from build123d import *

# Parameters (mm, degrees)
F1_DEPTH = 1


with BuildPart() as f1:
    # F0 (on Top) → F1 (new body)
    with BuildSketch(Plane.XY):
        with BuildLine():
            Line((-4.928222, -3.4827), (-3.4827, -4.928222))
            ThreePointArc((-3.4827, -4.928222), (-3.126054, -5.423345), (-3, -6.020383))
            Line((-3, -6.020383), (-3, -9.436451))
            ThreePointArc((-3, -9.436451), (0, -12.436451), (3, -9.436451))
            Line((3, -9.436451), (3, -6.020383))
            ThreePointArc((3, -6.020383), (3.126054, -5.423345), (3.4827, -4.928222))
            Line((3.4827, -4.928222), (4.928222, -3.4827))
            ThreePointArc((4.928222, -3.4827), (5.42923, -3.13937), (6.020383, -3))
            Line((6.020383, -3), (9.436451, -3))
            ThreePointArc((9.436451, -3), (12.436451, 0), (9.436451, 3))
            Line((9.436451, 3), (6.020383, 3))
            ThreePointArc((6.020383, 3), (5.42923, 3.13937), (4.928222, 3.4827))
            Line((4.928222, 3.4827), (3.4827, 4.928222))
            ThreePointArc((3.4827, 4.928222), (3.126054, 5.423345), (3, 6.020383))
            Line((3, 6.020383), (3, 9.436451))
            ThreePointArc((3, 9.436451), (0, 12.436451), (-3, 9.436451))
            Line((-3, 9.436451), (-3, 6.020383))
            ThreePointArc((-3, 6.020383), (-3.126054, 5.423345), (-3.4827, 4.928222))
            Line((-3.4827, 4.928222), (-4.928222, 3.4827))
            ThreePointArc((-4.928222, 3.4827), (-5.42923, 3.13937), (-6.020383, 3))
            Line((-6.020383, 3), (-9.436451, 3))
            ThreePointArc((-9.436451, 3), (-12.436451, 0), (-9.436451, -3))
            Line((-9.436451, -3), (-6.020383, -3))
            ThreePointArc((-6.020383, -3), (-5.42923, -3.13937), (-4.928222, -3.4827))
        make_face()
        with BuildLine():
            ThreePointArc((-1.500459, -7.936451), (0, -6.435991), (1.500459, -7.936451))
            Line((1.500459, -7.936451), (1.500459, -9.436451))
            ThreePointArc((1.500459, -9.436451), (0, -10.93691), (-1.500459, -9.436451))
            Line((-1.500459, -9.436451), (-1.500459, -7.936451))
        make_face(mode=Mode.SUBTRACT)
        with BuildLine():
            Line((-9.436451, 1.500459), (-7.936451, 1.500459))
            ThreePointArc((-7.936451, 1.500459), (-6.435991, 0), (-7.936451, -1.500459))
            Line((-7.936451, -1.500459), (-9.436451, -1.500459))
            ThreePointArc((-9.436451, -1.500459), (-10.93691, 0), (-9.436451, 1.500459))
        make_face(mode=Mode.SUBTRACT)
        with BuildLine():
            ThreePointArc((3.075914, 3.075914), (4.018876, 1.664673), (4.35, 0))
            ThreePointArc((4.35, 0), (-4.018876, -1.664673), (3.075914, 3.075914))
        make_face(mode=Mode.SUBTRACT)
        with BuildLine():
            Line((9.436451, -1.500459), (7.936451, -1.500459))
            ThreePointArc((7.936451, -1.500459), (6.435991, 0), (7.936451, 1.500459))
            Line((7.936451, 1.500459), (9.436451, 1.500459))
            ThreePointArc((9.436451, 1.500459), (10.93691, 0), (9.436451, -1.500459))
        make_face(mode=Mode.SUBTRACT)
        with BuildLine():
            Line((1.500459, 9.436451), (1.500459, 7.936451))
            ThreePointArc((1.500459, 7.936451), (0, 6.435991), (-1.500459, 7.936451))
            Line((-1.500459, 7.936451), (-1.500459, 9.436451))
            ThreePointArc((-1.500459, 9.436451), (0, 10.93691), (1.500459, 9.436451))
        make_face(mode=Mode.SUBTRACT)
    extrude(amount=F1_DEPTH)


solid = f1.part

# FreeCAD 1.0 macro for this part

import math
import FreeCAD as App
import Part
import Sketcher

doc = App.newDocument("Part")
params = doc.addObject("Spreadsheet::Sheet", "Params")
for row, (alias, value) in enumerate([
    ("sketch1_radius", "3 mm"),
    ("sketch1_radius2", "3 mm"),
    ("sketch1_radius3", "3 mm"),
    ("sketch1_radius4", "3 mm"),
    ("sketch1_radius5", "4.35 mm"),
    ("pad1_length", "1 mm"),
], start=1):
    params.set(f"A{row}", alias)
    params.set(f"B{row}", "=" + value)
    params.setAlias(f"B{row}", alias)

body = doc.addObject("PartDesign::Body", "Body")

# Sketch on XY plane
sketch1 = body.newObject("Sketcher::SketchObject", "Sketch")
sketch1.AttachmentSupport = (doc.getObject("XY_Plane"), [""])
sketch1.MapMode = "FlatFace"
sketch1.addGeometry([
    Part.LineSegment(App.Vector(-4.928222, -3.4827, 0), App.Vector(-3.4827, -4.928222, 0)),  # 0
    Part.ArcOfCircle(Part.Circle(App.Vector(-4.47691, -6.02038, 0), App.Vector(0, 0, 1), 1.47691), math.radians(-0.000099), math.radians(47.68787)),  # 1
    Part.LineSegment(App.Vector(-3, -6.020383, 0), App.Vector(-3, -9.436451, 0)),  # 2
    Part.ArcOfCircle(Part.Circle(App.Vector(0, -9.436451, 0), App.Vector(0, 0, 1), 3), math.radians(180), math.radians(360)),  # 3
    Part.LineSegment(App.Vector(3, -9.436451, 0), App.Vector(3, -6.020383, 0)),  # 4
    Part.ArcOfCircle(Part.Circle(App.Vector(4.47691, -6.02038, 0), App.Vector(0, 0, 1), 1.47691), math.radians(132.31213), math.radians(180.000099)),  # 5
    Part.LineSegment(App.Vector(3.4827, -4.928222, 0), App.Vector(4.928222, -3.4827, 0)),  # 6
    Part.ArcOfCircle(Part.Circle(App.Vector(6.097953, -4.652427, 0), App.Vector(0, 0, 1), 1.654247), math.radians(92.687672), math.radians(135.000099)),  # 7
    Part.LineSegment(App.Vector(6.020383, -3, 0), App.Vector(9.436451, -3, 0)),  # 8
    Part.ArcOfCircle(Part.Circle(App.Vector(9.436451, 0, 0), App.Vector(0, 0, 1), 3), math.radians(-90), math.radians(90)),  # 9
    Part.LineSegment(App.Vector(9.436451, 3, 0), App.Vector(6.020383, 3, 0)),  # 10
    Part.ArcOfCircle(Part.Circle(App.Vector(6.097953, 4.652427, 0), App.Vector(0, 0, 1), 1.654247), math.radians(-135.000099), math.radians(-92.687672)),  # 11
    Part.LineSegment(App.Vector(4.928222, 3.4827, 0), App.Vector(3.4827, 4.928222, 0)),  # 12
    Part.ArcOfCircle(Part.Circle(App.Vector(4.47691, 6.02038, 0), App.Vector(0, 0, 1), 1.47691), math.radians(179.999901), math.radians(227.68787)),  # 13
    Part.LineSegment(App.Vector(3, 6.020383, 0), App.Vector(3, 9.436451, 0)),  # 14
    Part.ArcOfCircle(Part.Circle(App.Vector(0, 9.436451, 0), App.Vector(0, 0, 1), 3), math.radians(0), math.radians(180)),  # 15
    Part.LineSegment(App.Vector(-3, 9.436451, 0), App.Vector(-3, 6.020383, 0)),  # 16
    Part.ArcOfCircle(Part.Circle(App.Vector(-4.47691, 6.02038, 0), App.Vector(0, 0, 1), 1.47691), math.radians(-47.68787), math.radians(0.000099)),  # 17
    Part.LineSegment(App.Vector(-3.4827, 4.928222, 0), App.Vector(-4.928222, 3.4827, 0)),  # 18
    Part.ArcOfCircle(Part.Circle(App.Vector(-6.097953, 4.652427, 0), App.Vector(0, 0, 1), 1.654247), math.radians(-87.312328), math.radians(-44.999901)),  # 19
    Part.LineSegment(App.Vector(-6.020383, 3, 0), App.Vector(-9.436451, 3, 0)),  # 20
    Part.ArcOfCircle(Part.Circle(App.Vector(-9.436451, 0, 0), App.Vector(0, 0, 1), 3), math.radians(90), math.radians(270)),  # 21
    Part.LineSegment(App.Vector(-9.436451, -3, 0), App.Vector(-6.020383, -3, 0)),  # 22
    Part.ArcOfCircle(Part.Circle(App.Vector(-6.097953, -4.652427, 0), App.Vector(0, 0, 1), 1.654247), math.radians(44.999901), math.radians(87.312328)),  # 23
    Part.LineSegment(App.Vector(-1.500459, -9.436451, 0), App.Vector(-1.500459, -7.936451, 0)),  # 24
    Part.ArcOfCircle(Part.Circle(App.Vector(0, -7.93645, 0), App.Vector(0, 0, 1), 1.500459), math.radians(-0.000038), math.radians(180.000038)),  # 25
    Part.LineSegment(App.Vector(1.500459, -7.936451, 0), App.Vector(1.500459, -9.436451, 0)),  # 26
    Part.ArcOfCircle(Part.Circle(App.Vector(0, -9.436451, 0), App.Vector(0, 0, 1), 1.500459), math.radians(180), math.radians(360)),  # 27
    Part.ArcOfCircle(Part.Circle(App.Vector(0, -0.000001, 0), App.Vector(0, 0, 1), 4.35), math.radians(45.00001), math.radians(360.000012)),  # 28
    Part.ArcOfCircle(Part.Circle(App.Vector(0.000005, 0.000001, 0), App.Vector(0, 0, 1), 4.349995), math.radians(-0.000016), math.radians(45.000038)),  # 29
    Part.ArcOfCircle(Part.Circle(App.Vector(-9.436451, 0, 0), App.Vector(0, 0, 1), 1.500459), math.radians(90), math.radians(270)),  # 30
    Part.LineSegment(App.Vector(-9.436451, 1.500459, 0), App.Vector(-7.936451, 1.500459, 0)),  # 31
    Part.ArcOfCircle(Part.Circle(App.Vector(-7.93645, 0, 0), App.Vector(0, 0, 1), 1.500459), math.radians(-90.000038), math.radians(90.000038)),  # 32
    Part.LineSegment(App.Vector(-7.936451, -1.500459, 0), App.Vector(-9.436451, -1.500459, 0)),  # 33
    Part.ArcOfCircle(Part.Circle(App.Vector(9.436451, 0, 0), App.Vector(0, 0, 1), 1.500459), math.radians(-90), math.radians(90)),  # 34
    Part.LineSegment(App.Vector(9.436451, -1.500459, 0), App.Vector(7.936451, -1.500459, 0)),  # 35
    Part.ArcOfCircle(Part.Circle(App.Vector(7.93645, 0, 0), App.Vector(0, 0, 1), 1.500459), math.radians(89.999962), math.radians(270.000038)),  # 36
    Part.LineSegment(App.Vector(7.936451, 1.500459, 0), App.Vector(9.436451, 1.500459, 0)),  # 37
    Part.ArcOfCircle(Part.Circle(App.Vector(0, 9.436451, 0), App.Vector(0, 0, 1), 1.500459), math.radians(0), math.radians(180)),  # 38
    Part.LineSegment(App.Vector(1.500459, 9.436451, 0), App.Vector(1.500459, 7.936451, 0)),  # 39
    Part.ArcOfCircle(Part.Circle(App.Vector(0, 7.93645, 0), App.Vector(0, 0, 1), 1.500459), math.radians(179.999962), math.radians(360.000038)),  # 40
    Part.LineSegment(App.Vector(-1.500459, 7.936451, 0), App.Vector(-1.500459, 9.436451, 0)),  # 41
], False)
sketch1.addConstraint([
    Sketcher.Constraint("Coincident", 0, 2, 1, 2),
    Sketcher.Constraint("Coincident", 1, 1, 2, 1),
    Sketcher.Constraint("Coincident", 2, 2, 3, 1),
    Sketcher.Constraint("Coincident", 3, 2, 4, 1),
    Sketcher.Constraint("Coincident", 4, 2, 5, 2),
    Sketcher.Constraint("Coincident", 5, 1, 6, 1),
    Sketcher.Constraint("Coincident", 6, 2, 7, 2),
    Sketcher.Constraint("Coincident", 7, 1, 8, 1),
    Sketcher.Constraint("Coincident", 8, 2, 9, 1),
    Sketcher.Constraint("Coincident", 9, 2, 10, 1),
    Sketcher.Constraint("Coincident", 10, 2, 11, 2),
    Sketcher.Constraint("Coincident", 11, 1, 12, 1),
    Sketcher.Constraint("Coincident", 12, 2, 13, 2),
    Sketcher.Constraint("Coincident", 13, 1, 14, 1),
    Sketcher.Constraint("Coincident", 14, 2, 15, 1),
    Sketcher.Constraint("Coincident", 15, 2, 16, 1),
    Sketcher.Constraint("Coincident", 16, 2, 17, 2),
    Sketcher.Constraint("Coincident", 17, 1, 18, 1),
    Sketcher.Constraint("Coincident", 18, 2, 19, 2),
    Sketcher.Constraint("Coincident", 19, 1, 20, 1),
    Sketcher.Constraint("Coincident", 20, 2, 21, 1),
    Sketcher.Constraint("Coincident", 21, 2, 22, 1),
    Sketcher.Constraint("Coincident", 22, 2, 23, 2),
    Sketcher.Constraint("Coincident", 23, 1, 0, 1),
    Sketcher.Constraint("Coincident", 24, 2, 25, 2),
    Sketcher.Constraint("Coincident", 25, 1, 26, 1),
    Sketcher.Constraint("Coincident", 26, 2, 27, 2),
    Sketcher.Constraint("Coincident", 27, 1, 24, 1),
    Sketcher.Constraint("Coincident", 28, 1, 29, 2),
    Sketcher.Constraint("Coincident", 29, 1, 28, 2),
    Sketcher.Constraint("Coincident", 30, 1, 31, 1),
    Sketcher.Constraint("Coincident", 31, 2, 32, 2),
    Sketcher.Constraint("Coincident", 32, 1, 33, 1),
    Sketcher.Constraint("Coincident", 33, 2, 30, 2),
    Sketcher.Constraint("Coincident", 34, 1, 35, 1),
    Sketcher.Constraint("Coincident", 35, 2, 36, 2),
    Sketcher.Constraint("Coincident", 36, 1, 37, 1),
    Sketcher.Constraint("Coincident", 37, 2, 34, 2),
    Sketcher.Constraint("Coincident", 38, 1, 39, 1),
    Sketcher.Constraint("Coincident", 39, 2, 40, 2),
    Sketcher.Constraint("Coincident", 40, 1, 41, 1),
    Sketcher.Constraint("Coincident", 41, 2, 38, 2),
    Sketcher.Constraint("Vertical", 2),
    Sketcher.Constraint("Vertical", 4),
    Sketcher.Constraint("Horizontal", 8),
    Sketcher.Constraint("Horizontal", 10),
    Sketcher.Constraint("Vertical", 14),
    Sketcher.Constraint("Vertical", 16),
    Sketcher.Constraint("Horizontal", 20),
    Sketcher.Constraint("Horizontal", 22),
    Sketcher.Constraint("Vertical", 24),
    Sketcher.Constraint("Vertical", 26),
    Sketcher.Constraint("Horizontal", 31),
    Sketcher.Constraint("Horizontal", 33),
    Sketcher.Constraint("Horizontal", 35),
    Sketcher.Constraint("Horizontal", 37),
    Sketcher.Constraint("Vertical", 39),
    Sketcher.Constraint("Vertical", 41),
    Sketcher.Constraint("Coincident", 28, 3, -1, 1),
    Sketcher.Constraint("Coincident", 27, 3, 3, 3),
    Sketcher.Constraint("Coincident", 30, 3, 21, 3),
    Sketcher.Constraint("Coincident", 34, 3, 9, 3),
    Sketcher.Constraint("Coincident", 38, 3, 15, 3),
    Sketcher.Constraint("PointOnObject", 3, 3, -2),
    Sketcher.Constraint("PointOnObject", 9, 3, -1),
    Sketcher.Constraint("PointOnObject", 15, 3, -2),
    Sketcher.Constraint("PointOnObject", 21, 3, -1),
    Sketcher.Constraint("PointOnObject", 29, 3, -1),
    Sketcher.Constraint("PointOnObject", 29, 1, -1),
    Sketcher.Constraint("Radius", 3, 3.0),
    Sketcher.Constraint("Radius", 9, 3.0),
    Sketcher.Constraint("Radius", 15, 3.0),
    Sketcher.Constraint("Radius", 21, 3.0),
    Sketcher.Constraint("Radius", 28, 4.35),
    Sketcher.Constraint("DistanceX", 31, 1, 31, 2, 1.5),
    Sketcher.Constraint("DistanceX", 33, 2, 33, 1, 1.5),
    Sketcher.Constraint("DistanceX", 35, 2, 35, 1, 1.5),
    Sketcher.Constraint("DistanceX", 37, 1, 37, 2, 1.5),
    Sketcher.Constraint("DistanceY", 24, 1, 24, 2, 1.5),
    Sketcher.Constraint("DistanceY", 26, 2, 26, 1, 1.5),
    Sketcher.Constraint("DistanceY", 39, 2, 39, 1, 1.5),
    Sketcher.Constraint("DistanceY", 41, 1, 41, 2, 1.5),
    Sketcher.Constraint("Radius", 1, 1.47691),
    Sketcher.Constraint("Radius", 5, 1.47691),
    Sketcher.Constraint("Radius", 13, 1.47691),
    Sketcher.Constraint("Radius", 17, 1.47691),
    Sketcher.Constraint("Radius", 25, 1.500459),
    Sketcher.Constraint("Radius", 30, 1.500459),
    Sketcher.Constraint("Radius", 34, 1.500459),
    Sketcher.Constraint("Radius", 38, 1.500459),
    Sketcher.Constraint("Radius", 7, 1.654247),
    Sketcher.Constraint("Radius", 11, 1.654247),
    Sketcher.Constraint("Radius", 19, 1.654247),
    Sketcher.Constraint("Radius", 23, 1.654247),
    Sketcher.Constraint("DistanceX", 8, 1, 8, 2, 3.416068),
    Sketcher.Constraint("DistanceX", 10, 2, 10, 1, 3.416068),
    Sketcher.Constraint("DistanceX", 20, 2, 20, 1, 3.416068),
    Sketcher.Constraint("DistanceX", 22, 1, 22, 2, 3.416068),
    Sketcher.Constraint("DistanceY", 2, 2, 2, 1, 3.416068),
    Sketcher.Constraint("DistanceY", 4, 1, 4, 2, 3.416068),
    Sketcher.Constraint("DistanceY", 14, 1, 14, 2, 3.416068),
    Sketcher.Constraint("DistanceY", 16, 2, 16, 1, 3.416068),
    Sketcher.Constraint("DistanceX", 0, 2, -1, 1, 3.4827),
    Sketcher.Constraint("DistanceX", -1, 1, 5, 1, 3.4827),
    Sketcher.Constraint("DistanceY", 6, 2, -1, 1, 3.4827),
    Sketcher.Constraint("DistanceY", -1, 1, 11, 1, 3.4827),
    Sketcher.Constraint("DistanceX", -1, 1, 12, 2, 3.4827),
    Sketcher.Constraint("DistanceX", 17, 1, -1, 1, 3.4827),
    Sketcher.Constraint("DistanceY", -1, 1, 18, 2, 3.4827),
    Sketcher.Constraint("DistanceY", 23, 1, -1, 1, 3.4827),
    Sketcher.Constraint("DistanceY", 1, 3, -1, 1, 6.02038),
    Sketcher.Constraint("DistanceY", 3, 3, -1, 1, 9.436451),
    Sketcher.Constraint("DistanceY", 5, 3, -1, 1, 6.02038),
    Sketcher.Constraint("DistanceX", -1, 1, 9, 3, 9.436451),
    Sketcher.Constraint("DistanceY", -1, 1, 13, 3, 6.02038),
    Sketcher.Constraint("DistanceY", -1, 1, 15, 3, 9.436451),
    Sketcher.Constraint("DistanceY", -1, 1, 17, 3, 6.02038),
    Sketcher.Constraint("DistanceX", 21, 3, -1, 1, 9.436451),
    Sketcher.Constraint("DistanceY", 25, 3, -1, 1, 7.93645),
    Sketcher.Constraint("DistanceX", 32, 3, -1, 1, 7.93645),
    Sketcher.Constraint("DistanceX", -1, 1, 36, 3, 7.93645),
    Sketcher.Constraint("DistanceY", -1, 1, 40, 3, 7.93645),
    Sketcher.Constraint("DistanceY", 2, 2, -1, 1, 9.436451),
    Sketcher.Constraint("DistanceY", 3, 2, -1, 1, 9.436451),
    Sketcher.Constraint("DistanceX", -1, 1, 8, 2, 9.436451),
    Sketcher.Constraint("DistanceX", -1, 1, 9, 2, 9.436451),
    Sketcher.Constraint("DistanceX", -1, 1, 11, 1, 4.928222),
    Sketcher.Constraint("DistanceY", -1, 1, 14, 2, 9.436451),
    Sketcher.Constraint("DistanceY", -1, 1, 15, 2, 9.436451),
    Sketcher.Constraint("DistanceX", 20, 2, -1, 1, 9.436451),
    Sketcher.Constraint("DistanceX", 21, 2, -1, 1, 9.436451),
    Sketcher.Constraint("DistanceX", 23, 1, -1, 1, 4.928222),
    Sketcher.Constraint("DistanceY", 24, 2, -1, 1, 7.936451),
    Sketcher.Constraint("DistanceY", 25, 1, -1, 1, 7.936451),
    Sketcher.Constraint("DistanceX", 30, 1, -1, 1, 9.436451),
    Sketcher.Constraint("DistanceX", 32, 1, -1, 1, 7.936451),
    Sketcher.Constraint("DistanceX", -1, 1, 34, 1, 9.436451),
    Sketcher.Constraint("DistanceX", -1, 1, 36, 1, 7.936451),
    Sketcher.Constraint("DistanceY", -1, 1, 38, 1, 9.436451),
    Sketcher.Constraint("DistanceY", -1, 1, 40, 1, 7.936451),
    Sketcher.Constraint("Distance", 6, 2.044277),
    Sketcher.Constraint("Distance", 18, 2.044277),
    Sketcher.Constraint("DistanceX", -1, 1, 28, 1, 3.075914),
])
sketch1.setExpression("Constraints[69]", "Params.sketch1_radius")
sketch1.setExpression("Constraints[70]", "Params.sketch1_radius2")
sketch1.setExpression("Constraints[71]", "Params.sketch1_radius3")
sketch1.setExpression("Constraints[72]", "Params.sketch1_radius4")
sketch1.setExpression("Constraints[73]", "Params.sketch1_radius5")
pad1 = body.newObject("PartDesign::Pad", "Pad")
pad1.Profile = sketch1
pad1.setExpression("Length", "Params.pad1_length")

doc.recompute()
